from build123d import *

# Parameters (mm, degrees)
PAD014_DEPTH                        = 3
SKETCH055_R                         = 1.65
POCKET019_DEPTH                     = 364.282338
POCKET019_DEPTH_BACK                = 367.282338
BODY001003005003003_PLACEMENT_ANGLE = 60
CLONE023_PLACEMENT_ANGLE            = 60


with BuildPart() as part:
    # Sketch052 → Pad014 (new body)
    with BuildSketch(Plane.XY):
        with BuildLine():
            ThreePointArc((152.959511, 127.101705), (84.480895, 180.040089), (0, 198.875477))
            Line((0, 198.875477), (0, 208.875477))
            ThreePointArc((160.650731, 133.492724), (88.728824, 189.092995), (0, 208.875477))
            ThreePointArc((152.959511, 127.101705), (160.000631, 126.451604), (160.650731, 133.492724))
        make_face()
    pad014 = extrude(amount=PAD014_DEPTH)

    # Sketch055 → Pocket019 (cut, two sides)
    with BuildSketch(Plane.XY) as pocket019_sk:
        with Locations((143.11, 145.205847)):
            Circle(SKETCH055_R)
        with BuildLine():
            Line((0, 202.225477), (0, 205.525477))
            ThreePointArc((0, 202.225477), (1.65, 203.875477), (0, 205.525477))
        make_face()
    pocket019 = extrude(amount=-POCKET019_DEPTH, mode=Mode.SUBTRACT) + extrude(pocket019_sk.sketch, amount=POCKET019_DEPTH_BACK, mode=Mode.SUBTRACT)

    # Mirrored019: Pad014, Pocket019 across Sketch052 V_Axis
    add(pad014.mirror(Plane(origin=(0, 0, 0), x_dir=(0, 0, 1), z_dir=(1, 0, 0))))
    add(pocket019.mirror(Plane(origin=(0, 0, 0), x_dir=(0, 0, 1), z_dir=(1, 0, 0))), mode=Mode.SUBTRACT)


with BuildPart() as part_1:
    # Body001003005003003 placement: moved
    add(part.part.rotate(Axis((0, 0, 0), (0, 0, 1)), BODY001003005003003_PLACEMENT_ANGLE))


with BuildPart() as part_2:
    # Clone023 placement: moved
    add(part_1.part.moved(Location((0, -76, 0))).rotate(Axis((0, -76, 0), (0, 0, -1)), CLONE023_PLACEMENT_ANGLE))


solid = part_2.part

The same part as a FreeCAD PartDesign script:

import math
import FreeCAD as App
import Part
import Sketcher
Q = App.Units.Quantity

doc = App.newDocument("Part")
body = doc.addObject("PartDesign::Body", "Body")

sketch1 = doc.addObject("Sketcher::SketchObject", "Sketch")
body.addObject(sketch1)
sketch1.AttachmentSupport = (doc.XY_Plane, [""])
sketch1.MapMode = "FlatFace"
sketch1.addGeometry([
    Part.ArcOfCircle(Part.Circle(App.Vector(-0.000001, -0.000003, 0), App.Vector(0, 0, 1), 198.87548), math.radians(39.724887), math.radians(90)),
    Part.ArcOfCircle(Part.Circle(App.Vector(156.805121, 130.297214, 0), App.Vector(0, 0, 1), 5), math.radians(-140.275122), math.radians(39.724894)),
    Part.ArcOfCircle(Part.Circle(App.Vector(0.000001, 0.000004, 0), App.Vector(0, 0, 1), 208.875473), math.radians(39.724886), math.radians(90)),
    Part.LineSegment(App.Vector(0, 208.875477, 0), App.Vector(0, 198.875477, 0)),
], False)
sketch1.addConstraint([
    Sketcher.Constraint("Tangent", 0, 1, 1, 1),
    Sketcher.Constraint("Tangent", 1, 2, 2, 1),
    Sketcher.Constraint("Coincident", 2, 2, 3, 1),
    Sketcher.Constraint("Coincident", 3, 2, 0, 2),
    Sketcher.Constraint("Vertical", 3),
    Sketcher.Constraint("Coincident", 0, 3, -1, 1),
    Sketcher.Constraint("Coincident", 2, 3, -1, 1),
    Sketcher.Constraint("PointOnObject", 2, 2, -2),
    Sketcher.Constraint("Radius", 1, Q("5 mm")),
    Sketcher.Constraint("Radius", 0, Q("198.87548 mm")),
    Sketcher.Constraint("DistanceY", 2, 3, 0, 1, Q("127.101701 mm")),
])
pad1 = doc.addObject("PartDesign::Pad", "Pad")
body.addObject(pad1)
pad1.Profile = sketch1
pad1.Length = 3

sketch2 = doc.addObject("Sketcher::SketchObject", "Sketch001")
body.addObject(sketch2)
sketch2.AttachmentSupport = (doc.XY_Plane, [""])
sketch2.MapMode = "FlatFace"
sketch2.addGeometry([
    Part.Circle(App.Vector(143.11, 145.205847, 0), App.Vector(0, 0, 1), 1.65),
    Part.LineSegment(App.Vector(0, 205.525477, 0), App.Vector(0, 202.225477, 0)),
    Part.ArcOfCircle(Part.Circle(App.Vector(0, 203.875477, 0), App.Vector(0, 0, 1), 1.65), math.radians(-90), math.radians(90)),
], False)
sketch2.addConstraint([
    Sketcher.Constraint("Coincident", 1, 1, 2, 2),
    Sketcher.Constraint("Coincident", 2, 1, 1, 2),
    Sketcher.Constraint("Vertical", 1),
    Sketcher.Constraint("Equal", 0, 2),
    Sketcher.Constraint("PointOnObject", 2, 3, -2),
    Sketcher.Constraint("PointOnObject", 1, 1, -2),
    Sketcher.Constraint("Diameter", 0, Q("3.3 mm")),
    Sketcher.Constraint("DistanceX", -1, 1, 0, 3, Q("143.11 mm")),
    Sketcher.Constraint("DistanceY", 0, 3, 2, 3, Q("58.66963 mm")),
    Sketcher.Constraint("DistanceY", -1, 1, 0, 3, Q("145.205847 mm")),
])
pocket1 = doc.addObject("PartDesign::Pocket", "Pocket")
body.addObject(pocket1)
pocket1.Profile = sketch2
pocket1.Type = "ThroughAll"
pocket1.Midplane = True
doc.recompute()

mirrored = doc.addObject("PartDesign::Mirrored", "Mirrored")
body.addObject(mirrored)
mirrored.Originals = [pad1, pocket1]
mirrored.MirrorPlane = (doc.YZ_Plane, [""])
body.Tip = mirrored
body2 = doc.addObject("PartDesign::Body", "Body001")
doc.recompute()

body.Placement = App.Placement(App.Vector(0, 0, 0), App.Rotation(App.Vector(0, 0, 1), 60))
boolean = doc.addObject("PartDesign::Boolean", "Boolean")
body2.addObject(boolean)
boolean.Type = "Fuse"
boolean.addObjects([body])
body3 = doc.addObject("PartDesign::Body", "Body002")
doc.recompute()

body2.Placement = App.Placement(App.Vector(0, -76, 0), App.Rotation(App.Vector(0, 0, -1), 60))
boolean2 = doc.addObject("PartDesign::Boolean", "Boolean001")
body3.addObject(boolean2)
boolean2.Type = "Fuse"
boolean2.addObjects([body2])

doc.recompute()
